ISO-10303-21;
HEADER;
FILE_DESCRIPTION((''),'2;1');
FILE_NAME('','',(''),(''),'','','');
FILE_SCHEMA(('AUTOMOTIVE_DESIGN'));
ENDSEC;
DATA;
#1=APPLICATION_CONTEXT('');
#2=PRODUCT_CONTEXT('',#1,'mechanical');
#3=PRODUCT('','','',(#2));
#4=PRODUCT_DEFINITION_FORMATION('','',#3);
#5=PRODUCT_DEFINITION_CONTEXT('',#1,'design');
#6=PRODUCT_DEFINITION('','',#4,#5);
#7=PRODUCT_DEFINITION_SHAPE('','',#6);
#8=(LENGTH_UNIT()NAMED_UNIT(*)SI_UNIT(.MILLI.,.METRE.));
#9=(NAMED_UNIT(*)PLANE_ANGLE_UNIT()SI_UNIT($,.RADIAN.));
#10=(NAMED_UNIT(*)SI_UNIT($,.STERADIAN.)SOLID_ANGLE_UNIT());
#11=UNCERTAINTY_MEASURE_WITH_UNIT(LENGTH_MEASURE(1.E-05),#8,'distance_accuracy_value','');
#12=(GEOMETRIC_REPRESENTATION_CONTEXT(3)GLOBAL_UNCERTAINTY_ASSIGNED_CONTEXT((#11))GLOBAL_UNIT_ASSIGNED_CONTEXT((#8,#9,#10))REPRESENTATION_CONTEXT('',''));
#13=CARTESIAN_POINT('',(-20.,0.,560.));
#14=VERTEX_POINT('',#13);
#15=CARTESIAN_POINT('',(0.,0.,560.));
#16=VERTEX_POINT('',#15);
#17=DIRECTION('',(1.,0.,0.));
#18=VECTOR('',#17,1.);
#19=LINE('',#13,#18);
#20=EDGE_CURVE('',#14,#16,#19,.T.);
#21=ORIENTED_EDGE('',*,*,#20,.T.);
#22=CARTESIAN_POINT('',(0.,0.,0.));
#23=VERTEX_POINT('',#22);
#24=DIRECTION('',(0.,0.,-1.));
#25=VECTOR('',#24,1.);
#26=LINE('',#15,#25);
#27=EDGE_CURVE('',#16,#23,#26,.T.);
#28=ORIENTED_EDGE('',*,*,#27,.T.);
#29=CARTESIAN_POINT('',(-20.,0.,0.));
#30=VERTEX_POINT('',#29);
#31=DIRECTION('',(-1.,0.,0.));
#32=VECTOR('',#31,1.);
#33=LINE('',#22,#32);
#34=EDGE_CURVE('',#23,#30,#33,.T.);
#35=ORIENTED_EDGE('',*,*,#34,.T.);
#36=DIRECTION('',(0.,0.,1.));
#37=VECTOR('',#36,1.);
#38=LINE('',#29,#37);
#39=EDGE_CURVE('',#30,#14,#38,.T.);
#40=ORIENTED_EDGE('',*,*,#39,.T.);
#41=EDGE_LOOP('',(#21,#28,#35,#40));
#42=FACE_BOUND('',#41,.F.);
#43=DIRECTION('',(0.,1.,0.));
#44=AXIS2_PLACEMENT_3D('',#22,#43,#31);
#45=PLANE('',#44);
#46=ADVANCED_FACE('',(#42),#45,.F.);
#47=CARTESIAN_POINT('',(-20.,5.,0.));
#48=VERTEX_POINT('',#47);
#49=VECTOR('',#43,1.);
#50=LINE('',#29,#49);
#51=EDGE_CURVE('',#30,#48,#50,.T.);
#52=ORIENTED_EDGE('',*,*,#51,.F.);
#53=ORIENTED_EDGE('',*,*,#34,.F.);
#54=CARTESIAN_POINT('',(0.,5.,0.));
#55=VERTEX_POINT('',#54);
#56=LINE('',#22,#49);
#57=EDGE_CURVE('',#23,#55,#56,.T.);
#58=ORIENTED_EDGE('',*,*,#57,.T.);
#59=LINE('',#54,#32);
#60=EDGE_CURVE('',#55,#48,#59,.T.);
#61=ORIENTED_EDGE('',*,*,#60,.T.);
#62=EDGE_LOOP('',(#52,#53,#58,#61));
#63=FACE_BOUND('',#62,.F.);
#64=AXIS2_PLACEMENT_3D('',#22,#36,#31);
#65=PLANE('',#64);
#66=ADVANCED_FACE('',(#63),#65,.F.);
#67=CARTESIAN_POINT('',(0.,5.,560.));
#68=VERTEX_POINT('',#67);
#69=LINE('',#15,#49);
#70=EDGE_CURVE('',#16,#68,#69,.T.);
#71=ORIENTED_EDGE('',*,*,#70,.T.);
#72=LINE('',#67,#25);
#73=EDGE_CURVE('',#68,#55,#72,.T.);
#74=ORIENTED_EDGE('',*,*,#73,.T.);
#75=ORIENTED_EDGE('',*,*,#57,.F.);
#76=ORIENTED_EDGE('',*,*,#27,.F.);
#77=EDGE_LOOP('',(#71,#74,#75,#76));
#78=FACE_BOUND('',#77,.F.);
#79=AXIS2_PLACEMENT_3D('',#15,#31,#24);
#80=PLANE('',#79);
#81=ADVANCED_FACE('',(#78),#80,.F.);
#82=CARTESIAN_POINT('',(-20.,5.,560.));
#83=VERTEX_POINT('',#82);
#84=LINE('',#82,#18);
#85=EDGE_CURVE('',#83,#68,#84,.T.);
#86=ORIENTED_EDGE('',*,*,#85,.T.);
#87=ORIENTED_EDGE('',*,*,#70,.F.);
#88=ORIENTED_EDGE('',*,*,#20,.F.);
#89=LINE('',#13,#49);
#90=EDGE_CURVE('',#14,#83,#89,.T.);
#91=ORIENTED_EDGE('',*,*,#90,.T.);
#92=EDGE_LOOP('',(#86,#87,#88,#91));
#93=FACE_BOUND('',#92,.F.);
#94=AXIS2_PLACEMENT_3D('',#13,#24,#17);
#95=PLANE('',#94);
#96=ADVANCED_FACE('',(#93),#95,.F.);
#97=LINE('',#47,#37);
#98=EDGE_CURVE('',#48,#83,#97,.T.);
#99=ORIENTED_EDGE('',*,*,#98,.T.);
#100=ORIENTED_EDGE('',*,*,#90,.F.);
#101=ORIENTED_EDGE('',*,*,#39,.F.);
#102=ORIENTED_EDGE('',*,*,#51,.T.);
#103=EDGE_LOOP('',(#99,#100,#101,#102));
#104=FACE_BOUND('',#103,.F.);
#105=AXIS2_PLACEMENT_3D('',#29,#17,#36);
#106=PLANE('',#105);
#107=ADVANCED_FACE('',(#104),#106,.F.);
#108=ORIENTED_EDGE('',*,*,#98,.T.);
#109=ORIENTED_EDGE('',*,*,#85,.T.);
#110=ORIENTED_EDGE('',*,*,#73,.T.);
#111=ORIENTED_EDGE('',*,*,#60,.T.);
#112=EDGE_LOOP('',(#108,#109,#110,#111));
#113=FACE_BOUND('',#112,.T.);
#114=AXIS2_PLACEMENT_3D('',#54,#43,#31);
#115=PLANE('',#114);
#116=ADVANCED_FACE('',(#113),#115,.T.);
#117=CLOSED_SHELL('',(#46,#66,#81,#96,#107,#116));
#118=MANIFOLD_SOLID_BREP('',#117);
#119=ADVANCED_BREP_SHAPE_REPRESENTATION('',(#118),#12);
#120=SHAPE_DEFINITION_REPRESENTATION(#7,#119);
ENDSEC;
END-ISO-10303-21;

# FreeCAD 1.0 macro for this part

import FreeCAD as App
import Part
import Sketcher

V = App.Vector
Q = App.Units.Quantity


def add_polygon(sketch, points):
    """Adds a closed chain of lines whose ends are joined by coincident constraints."""
    first, n = sketch.GeometryCount, len(points)
    for a, b in zip(points, points[1:] + points[:1]):
        sketch.addGeometry(Part.LineSegment(App.Vector(*a, 0), App.Vector(*b, 0)), False)
    for i in range(n):
        sketch.addConstraint(Sketcher.Constraint("Coincident", first + i, 2, first + (i + 1) % n, 1))

doc = App.newDocument("Part")
body = doc.addObject("PartDesign::Body", "Body")

# Sketch on XZ plane
sketch1 = body.newObject("Sketcher::SketchObject", "Sketch")
sketch1.AttachmentSupport = (doc.getObject("XZ_Plane"), [""])
sketch1.MapMode = "FlatFace"
add_polygon(sketch1, [(0, 560), (0, 0), (-20, 0), (-20, 560)])  # lines 0-3
sketch1.addConstraint([
    Sketcher.Constraint("Vertical", 0),
    Sketcher.Constraint("Horizontal", 1),
    Sketcher.Constraint("Vertical", 2),
    Sketcher.Constraint("Horizontal", 3),
    Sketcher.Constraint("Coincident", 0, 2, -1, 1),
    Sketcher.Constraint("DistanceX", 1, 2, 1, 1, Q("20 mm")),
    Sketcher.Constraint("DistanceY", 0, 2, 0, 1, Q("560 mm")),
])
pad1 = body.newObject("PartDesign::Pad", "Pad")
pad1.Profile = sketch1
pad1.Length = 5
pad1.Reversed = True

doc.recompute()
